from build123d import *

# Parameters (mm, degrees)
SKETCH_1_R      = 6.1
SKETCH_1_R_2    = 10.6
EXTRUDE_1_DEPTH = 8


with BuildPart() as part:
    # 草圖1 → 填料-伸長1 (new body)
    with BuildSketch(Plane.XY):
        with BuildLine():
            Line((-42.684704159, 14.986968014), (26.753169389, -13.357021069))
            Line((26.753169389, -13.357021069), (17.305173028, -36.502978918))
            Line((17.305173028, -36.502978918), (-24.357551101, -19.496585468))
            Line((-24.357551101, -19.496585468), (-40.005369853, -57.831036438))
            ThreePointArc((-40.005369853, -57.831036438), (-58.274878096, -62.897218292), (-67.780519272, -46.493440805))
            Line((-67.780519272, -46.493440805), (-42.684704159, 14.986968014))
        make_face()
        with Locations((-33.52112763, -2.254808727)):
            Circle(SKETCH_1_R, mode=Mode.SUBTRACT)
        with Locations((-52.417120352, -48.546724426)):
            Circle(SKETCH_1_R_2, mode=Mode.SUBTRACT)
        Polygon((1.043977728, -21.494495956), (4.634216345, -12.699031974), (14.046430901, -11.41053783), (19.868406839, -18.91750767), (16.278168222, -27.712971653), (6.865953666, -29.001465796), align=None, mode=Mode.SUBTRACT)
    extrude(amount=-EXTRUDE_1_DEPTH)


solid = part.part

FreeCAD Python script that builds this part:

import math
import FreeCAD as App
import Part
import Sketcher

doc = App.newDocument("Part")
body = doc.addObject("PartDesign::Body", "Body")

# Sketch on XY plane
sketch1 = doc.addObject("Sketcher::SketchObject", "Sketch")
body.addObject(sketch1)
sketch1.AttachmentSupport = (doc.XY_Plane, [""])
sketch1.MapMode = "FlatFace"
sketch1.addGeometry(Part.LineSegment(App.Vector(27, -13, 0), App.Vector(-43, 15, 0)), False)
sketch1.addGeometry(Part.LineSegment(App.Vector(-43, 15, 0), App.Vector(-68, -46, 0)), False)
sketch1.addGeometry(Part.ArcOfCircle(Part.Circle(App.Vector(-52, -49, 0), App.Vector(0, 0, 1), 16), math.radians(172), math.radians(323)), False)
sketch1.addGeometry(Part.LineSegment(App.Vector(-40, -58, 0), App.Vector(-24, -19, 0)), False)
sketch1.addGeometry(Part.LineSegment(App.Vector(-24, -19, 0), App.Vector(17, -37, 0)), False)
sketch1.addGeometry(Part.LineSegment(App.Vector(17, -37, 0), App.Vector(27, -13, 0)), False)
sketch1.addGeometry(Part.Circle(App.Vector(-52, -49, 0), App.Vector(0, 0, 1), 11), False)
sketch1.addGeometry(Part.LineSegment(App.Vector(1, -21, 0), App.Vector(5, -13, 0)), False)
sketch1.addGeometry(Part.LineSegment(App.Vector(5, -13, 0), App.Vector(14, -11, 0)), False)
sketch1.addGeometry(Part.LineSegment(App.Vector(14, -11, 0), App.Vector(20, -19, 0)), False)
sketch1.addGeometry(Part.LineSegment(App.Vector(20, -19, 0), App.Vector(16, -28, 0)), False)
sketch1.addGeometry(Part.LineSegment(App.Vector(16, -28, 0), App.Vector(7, -29, 0)), False)
sketch1.addGeometry(Part.LineSegment(App.Vector(7, -29, 0), App.Vector(1, -21, 0)), False)
sketch1.addGeometry(Part.Circle(App.Vector(-34, -2, 0), App.Vector(0, 0, 1), 6), False)
sketch1.addConstraint(Sketcher.Constraint("Coincident", 0, 2, 1, 1))
sketch1.addConstraint(Sketcher.Constraint("Coincident", 1, 2, 2, 1))
sketch1.addConstraint(Sketcher.Constraint("Coincident", 2, 2, 3, 1))
sketch1.addConstraint(Sketcher.Constraint("Coincident", 3, 2, 4, 1))
sketch1.addConstraint(Sketcher.Constraint("Coincident", 4, 2, 5, 1))
sketch1.addConstraint(Sketcher.Constraint("Coincident", 5, 2, 0, 1))
sketch1.addConstraint(Sketcher.Constraint("Coincident", 7, 2, 8, 1))
sketch1.addConstraint(Sketcher.Constraint("Coincident", 8, 2, 9, 1))
sketch1.addConstraint(Sketcher.Constraint("Coincident", 9, 2, 10, 1))
sketch1.addConstraint(Sketcher.Constraint("Coincident", 10, 2, 11, 1))
sketch1.addConstraint(Sketcher.Constraint("Coincident", 11, 2, 12, 1))
sketch1.addConstraint(Sketcher.Constraint("Coincident", 12, 2, 7, 1))
sketch1.addConstraint(Sketcher.Constraint("Coincident", 6, 3, 2, 3))
sketch1.addConstraint(Sketcher.Constraint("Perpendicular", 0, 1))
sketch1.addConstraint(Sketcher.Constraint("Parallel", 1, 3))
sketch1.addConstraint(Sketcher.Constraint("Perpendicular", 3, 4))
sketch1.addConstraint(Sketcher.Constraint("Perpendicular", 4, 5))
sketch1.addConstraint(Sketcher.Constraint("Parallel", 5, 7))
sketch1.addConstraint(Sketcher.Constraint("Parallel", 7, 10))
sketch1.addConstraint(Sketcher.Constraint("Parallel", 8, 11))
sketch1.addConstraint(Sketcher.Constraint("Parallel", 9, 12))
sketch1.addConstraint(Sketcher.Constraint("Equal", 7, 8))
sketch1.addConstraint(Sketcher.Constraint("Equal", 8, 9))
sketch1.addConstraint(Sketcher.Constraint("Equal", 9, 10))
sketch1.addConstraint(Sketcher.Constraint("Diameter", 6, 21.2))
sketch1.addConstraint(Sketcher.Constraint("Diameter", 13, 12.2))
sketch1.addConstraint(Sketcher.Constraint("Radius", 2, 15.5))
sketch1.addConstraint(Sketcher.Constraint("Distance", 0, 75.0))
sketch1.addConstraint(Sketcher.Constraint("Distance", 4, 45.0))
sketch1.addConstraint(Sketcher.Constraint("Distance", 5, 25.0))
sketch1.addConstraint(Sketcher.Constraint("Distance", 7, 9.5))
sketch1.addConstraint(Sketcher.Constraint("DistanceY", 7, 2, 0, 2, 27.686))
sketch1.addConstraint(Sketcher.Constraint("DistanceX", 10, 2, 5, 2, 10.475001))
sketch1.addConstraint(Sketcher.Constraint("DistanceX", 1, 2, 2, 3, 15.363399))
sketch1.addConstraint(Sketcher.Constraint("DistanceX", 13, 3, 4, 2, 50.826301))
sketch1.addConstraint(Sketcher.Constraint("DistanceX", 2, 3, -1, 1, 52.41712))
sketch1.addConstraint(Sketcher.Constraint("DistanceY", 13, 3, -1, 1, 2.254809))
sketch1.addConstraint(Sketcher.Constraint("DistanceY", -1, 1, 0, 2, 14.986968))
sketch1.addConstraint(Sketcher.Constraint("DistanceY", 1, 2, -1, 1, 46.493441))
sketch1.addConstraint(Sketcher.Constraint("DistanceX", 3, 2, -1, 1, 24.357551))
sketch1.addConstraint(Sketcher.Constraint("DistanceX", -1, 1, 8, 2, 14.046431))
sketch1.addConstraint(Sketcher.Constraint("DistanceY", 10, 2, -1, 1, 27.712972))
pad1 = doc.addObject("PartDesign::Pad", "Pad")
body.addObject(pad1)
pad1.Profile = sketch1
pad1.Length = 8
pad1.Reversed = True

doc.recompute()
